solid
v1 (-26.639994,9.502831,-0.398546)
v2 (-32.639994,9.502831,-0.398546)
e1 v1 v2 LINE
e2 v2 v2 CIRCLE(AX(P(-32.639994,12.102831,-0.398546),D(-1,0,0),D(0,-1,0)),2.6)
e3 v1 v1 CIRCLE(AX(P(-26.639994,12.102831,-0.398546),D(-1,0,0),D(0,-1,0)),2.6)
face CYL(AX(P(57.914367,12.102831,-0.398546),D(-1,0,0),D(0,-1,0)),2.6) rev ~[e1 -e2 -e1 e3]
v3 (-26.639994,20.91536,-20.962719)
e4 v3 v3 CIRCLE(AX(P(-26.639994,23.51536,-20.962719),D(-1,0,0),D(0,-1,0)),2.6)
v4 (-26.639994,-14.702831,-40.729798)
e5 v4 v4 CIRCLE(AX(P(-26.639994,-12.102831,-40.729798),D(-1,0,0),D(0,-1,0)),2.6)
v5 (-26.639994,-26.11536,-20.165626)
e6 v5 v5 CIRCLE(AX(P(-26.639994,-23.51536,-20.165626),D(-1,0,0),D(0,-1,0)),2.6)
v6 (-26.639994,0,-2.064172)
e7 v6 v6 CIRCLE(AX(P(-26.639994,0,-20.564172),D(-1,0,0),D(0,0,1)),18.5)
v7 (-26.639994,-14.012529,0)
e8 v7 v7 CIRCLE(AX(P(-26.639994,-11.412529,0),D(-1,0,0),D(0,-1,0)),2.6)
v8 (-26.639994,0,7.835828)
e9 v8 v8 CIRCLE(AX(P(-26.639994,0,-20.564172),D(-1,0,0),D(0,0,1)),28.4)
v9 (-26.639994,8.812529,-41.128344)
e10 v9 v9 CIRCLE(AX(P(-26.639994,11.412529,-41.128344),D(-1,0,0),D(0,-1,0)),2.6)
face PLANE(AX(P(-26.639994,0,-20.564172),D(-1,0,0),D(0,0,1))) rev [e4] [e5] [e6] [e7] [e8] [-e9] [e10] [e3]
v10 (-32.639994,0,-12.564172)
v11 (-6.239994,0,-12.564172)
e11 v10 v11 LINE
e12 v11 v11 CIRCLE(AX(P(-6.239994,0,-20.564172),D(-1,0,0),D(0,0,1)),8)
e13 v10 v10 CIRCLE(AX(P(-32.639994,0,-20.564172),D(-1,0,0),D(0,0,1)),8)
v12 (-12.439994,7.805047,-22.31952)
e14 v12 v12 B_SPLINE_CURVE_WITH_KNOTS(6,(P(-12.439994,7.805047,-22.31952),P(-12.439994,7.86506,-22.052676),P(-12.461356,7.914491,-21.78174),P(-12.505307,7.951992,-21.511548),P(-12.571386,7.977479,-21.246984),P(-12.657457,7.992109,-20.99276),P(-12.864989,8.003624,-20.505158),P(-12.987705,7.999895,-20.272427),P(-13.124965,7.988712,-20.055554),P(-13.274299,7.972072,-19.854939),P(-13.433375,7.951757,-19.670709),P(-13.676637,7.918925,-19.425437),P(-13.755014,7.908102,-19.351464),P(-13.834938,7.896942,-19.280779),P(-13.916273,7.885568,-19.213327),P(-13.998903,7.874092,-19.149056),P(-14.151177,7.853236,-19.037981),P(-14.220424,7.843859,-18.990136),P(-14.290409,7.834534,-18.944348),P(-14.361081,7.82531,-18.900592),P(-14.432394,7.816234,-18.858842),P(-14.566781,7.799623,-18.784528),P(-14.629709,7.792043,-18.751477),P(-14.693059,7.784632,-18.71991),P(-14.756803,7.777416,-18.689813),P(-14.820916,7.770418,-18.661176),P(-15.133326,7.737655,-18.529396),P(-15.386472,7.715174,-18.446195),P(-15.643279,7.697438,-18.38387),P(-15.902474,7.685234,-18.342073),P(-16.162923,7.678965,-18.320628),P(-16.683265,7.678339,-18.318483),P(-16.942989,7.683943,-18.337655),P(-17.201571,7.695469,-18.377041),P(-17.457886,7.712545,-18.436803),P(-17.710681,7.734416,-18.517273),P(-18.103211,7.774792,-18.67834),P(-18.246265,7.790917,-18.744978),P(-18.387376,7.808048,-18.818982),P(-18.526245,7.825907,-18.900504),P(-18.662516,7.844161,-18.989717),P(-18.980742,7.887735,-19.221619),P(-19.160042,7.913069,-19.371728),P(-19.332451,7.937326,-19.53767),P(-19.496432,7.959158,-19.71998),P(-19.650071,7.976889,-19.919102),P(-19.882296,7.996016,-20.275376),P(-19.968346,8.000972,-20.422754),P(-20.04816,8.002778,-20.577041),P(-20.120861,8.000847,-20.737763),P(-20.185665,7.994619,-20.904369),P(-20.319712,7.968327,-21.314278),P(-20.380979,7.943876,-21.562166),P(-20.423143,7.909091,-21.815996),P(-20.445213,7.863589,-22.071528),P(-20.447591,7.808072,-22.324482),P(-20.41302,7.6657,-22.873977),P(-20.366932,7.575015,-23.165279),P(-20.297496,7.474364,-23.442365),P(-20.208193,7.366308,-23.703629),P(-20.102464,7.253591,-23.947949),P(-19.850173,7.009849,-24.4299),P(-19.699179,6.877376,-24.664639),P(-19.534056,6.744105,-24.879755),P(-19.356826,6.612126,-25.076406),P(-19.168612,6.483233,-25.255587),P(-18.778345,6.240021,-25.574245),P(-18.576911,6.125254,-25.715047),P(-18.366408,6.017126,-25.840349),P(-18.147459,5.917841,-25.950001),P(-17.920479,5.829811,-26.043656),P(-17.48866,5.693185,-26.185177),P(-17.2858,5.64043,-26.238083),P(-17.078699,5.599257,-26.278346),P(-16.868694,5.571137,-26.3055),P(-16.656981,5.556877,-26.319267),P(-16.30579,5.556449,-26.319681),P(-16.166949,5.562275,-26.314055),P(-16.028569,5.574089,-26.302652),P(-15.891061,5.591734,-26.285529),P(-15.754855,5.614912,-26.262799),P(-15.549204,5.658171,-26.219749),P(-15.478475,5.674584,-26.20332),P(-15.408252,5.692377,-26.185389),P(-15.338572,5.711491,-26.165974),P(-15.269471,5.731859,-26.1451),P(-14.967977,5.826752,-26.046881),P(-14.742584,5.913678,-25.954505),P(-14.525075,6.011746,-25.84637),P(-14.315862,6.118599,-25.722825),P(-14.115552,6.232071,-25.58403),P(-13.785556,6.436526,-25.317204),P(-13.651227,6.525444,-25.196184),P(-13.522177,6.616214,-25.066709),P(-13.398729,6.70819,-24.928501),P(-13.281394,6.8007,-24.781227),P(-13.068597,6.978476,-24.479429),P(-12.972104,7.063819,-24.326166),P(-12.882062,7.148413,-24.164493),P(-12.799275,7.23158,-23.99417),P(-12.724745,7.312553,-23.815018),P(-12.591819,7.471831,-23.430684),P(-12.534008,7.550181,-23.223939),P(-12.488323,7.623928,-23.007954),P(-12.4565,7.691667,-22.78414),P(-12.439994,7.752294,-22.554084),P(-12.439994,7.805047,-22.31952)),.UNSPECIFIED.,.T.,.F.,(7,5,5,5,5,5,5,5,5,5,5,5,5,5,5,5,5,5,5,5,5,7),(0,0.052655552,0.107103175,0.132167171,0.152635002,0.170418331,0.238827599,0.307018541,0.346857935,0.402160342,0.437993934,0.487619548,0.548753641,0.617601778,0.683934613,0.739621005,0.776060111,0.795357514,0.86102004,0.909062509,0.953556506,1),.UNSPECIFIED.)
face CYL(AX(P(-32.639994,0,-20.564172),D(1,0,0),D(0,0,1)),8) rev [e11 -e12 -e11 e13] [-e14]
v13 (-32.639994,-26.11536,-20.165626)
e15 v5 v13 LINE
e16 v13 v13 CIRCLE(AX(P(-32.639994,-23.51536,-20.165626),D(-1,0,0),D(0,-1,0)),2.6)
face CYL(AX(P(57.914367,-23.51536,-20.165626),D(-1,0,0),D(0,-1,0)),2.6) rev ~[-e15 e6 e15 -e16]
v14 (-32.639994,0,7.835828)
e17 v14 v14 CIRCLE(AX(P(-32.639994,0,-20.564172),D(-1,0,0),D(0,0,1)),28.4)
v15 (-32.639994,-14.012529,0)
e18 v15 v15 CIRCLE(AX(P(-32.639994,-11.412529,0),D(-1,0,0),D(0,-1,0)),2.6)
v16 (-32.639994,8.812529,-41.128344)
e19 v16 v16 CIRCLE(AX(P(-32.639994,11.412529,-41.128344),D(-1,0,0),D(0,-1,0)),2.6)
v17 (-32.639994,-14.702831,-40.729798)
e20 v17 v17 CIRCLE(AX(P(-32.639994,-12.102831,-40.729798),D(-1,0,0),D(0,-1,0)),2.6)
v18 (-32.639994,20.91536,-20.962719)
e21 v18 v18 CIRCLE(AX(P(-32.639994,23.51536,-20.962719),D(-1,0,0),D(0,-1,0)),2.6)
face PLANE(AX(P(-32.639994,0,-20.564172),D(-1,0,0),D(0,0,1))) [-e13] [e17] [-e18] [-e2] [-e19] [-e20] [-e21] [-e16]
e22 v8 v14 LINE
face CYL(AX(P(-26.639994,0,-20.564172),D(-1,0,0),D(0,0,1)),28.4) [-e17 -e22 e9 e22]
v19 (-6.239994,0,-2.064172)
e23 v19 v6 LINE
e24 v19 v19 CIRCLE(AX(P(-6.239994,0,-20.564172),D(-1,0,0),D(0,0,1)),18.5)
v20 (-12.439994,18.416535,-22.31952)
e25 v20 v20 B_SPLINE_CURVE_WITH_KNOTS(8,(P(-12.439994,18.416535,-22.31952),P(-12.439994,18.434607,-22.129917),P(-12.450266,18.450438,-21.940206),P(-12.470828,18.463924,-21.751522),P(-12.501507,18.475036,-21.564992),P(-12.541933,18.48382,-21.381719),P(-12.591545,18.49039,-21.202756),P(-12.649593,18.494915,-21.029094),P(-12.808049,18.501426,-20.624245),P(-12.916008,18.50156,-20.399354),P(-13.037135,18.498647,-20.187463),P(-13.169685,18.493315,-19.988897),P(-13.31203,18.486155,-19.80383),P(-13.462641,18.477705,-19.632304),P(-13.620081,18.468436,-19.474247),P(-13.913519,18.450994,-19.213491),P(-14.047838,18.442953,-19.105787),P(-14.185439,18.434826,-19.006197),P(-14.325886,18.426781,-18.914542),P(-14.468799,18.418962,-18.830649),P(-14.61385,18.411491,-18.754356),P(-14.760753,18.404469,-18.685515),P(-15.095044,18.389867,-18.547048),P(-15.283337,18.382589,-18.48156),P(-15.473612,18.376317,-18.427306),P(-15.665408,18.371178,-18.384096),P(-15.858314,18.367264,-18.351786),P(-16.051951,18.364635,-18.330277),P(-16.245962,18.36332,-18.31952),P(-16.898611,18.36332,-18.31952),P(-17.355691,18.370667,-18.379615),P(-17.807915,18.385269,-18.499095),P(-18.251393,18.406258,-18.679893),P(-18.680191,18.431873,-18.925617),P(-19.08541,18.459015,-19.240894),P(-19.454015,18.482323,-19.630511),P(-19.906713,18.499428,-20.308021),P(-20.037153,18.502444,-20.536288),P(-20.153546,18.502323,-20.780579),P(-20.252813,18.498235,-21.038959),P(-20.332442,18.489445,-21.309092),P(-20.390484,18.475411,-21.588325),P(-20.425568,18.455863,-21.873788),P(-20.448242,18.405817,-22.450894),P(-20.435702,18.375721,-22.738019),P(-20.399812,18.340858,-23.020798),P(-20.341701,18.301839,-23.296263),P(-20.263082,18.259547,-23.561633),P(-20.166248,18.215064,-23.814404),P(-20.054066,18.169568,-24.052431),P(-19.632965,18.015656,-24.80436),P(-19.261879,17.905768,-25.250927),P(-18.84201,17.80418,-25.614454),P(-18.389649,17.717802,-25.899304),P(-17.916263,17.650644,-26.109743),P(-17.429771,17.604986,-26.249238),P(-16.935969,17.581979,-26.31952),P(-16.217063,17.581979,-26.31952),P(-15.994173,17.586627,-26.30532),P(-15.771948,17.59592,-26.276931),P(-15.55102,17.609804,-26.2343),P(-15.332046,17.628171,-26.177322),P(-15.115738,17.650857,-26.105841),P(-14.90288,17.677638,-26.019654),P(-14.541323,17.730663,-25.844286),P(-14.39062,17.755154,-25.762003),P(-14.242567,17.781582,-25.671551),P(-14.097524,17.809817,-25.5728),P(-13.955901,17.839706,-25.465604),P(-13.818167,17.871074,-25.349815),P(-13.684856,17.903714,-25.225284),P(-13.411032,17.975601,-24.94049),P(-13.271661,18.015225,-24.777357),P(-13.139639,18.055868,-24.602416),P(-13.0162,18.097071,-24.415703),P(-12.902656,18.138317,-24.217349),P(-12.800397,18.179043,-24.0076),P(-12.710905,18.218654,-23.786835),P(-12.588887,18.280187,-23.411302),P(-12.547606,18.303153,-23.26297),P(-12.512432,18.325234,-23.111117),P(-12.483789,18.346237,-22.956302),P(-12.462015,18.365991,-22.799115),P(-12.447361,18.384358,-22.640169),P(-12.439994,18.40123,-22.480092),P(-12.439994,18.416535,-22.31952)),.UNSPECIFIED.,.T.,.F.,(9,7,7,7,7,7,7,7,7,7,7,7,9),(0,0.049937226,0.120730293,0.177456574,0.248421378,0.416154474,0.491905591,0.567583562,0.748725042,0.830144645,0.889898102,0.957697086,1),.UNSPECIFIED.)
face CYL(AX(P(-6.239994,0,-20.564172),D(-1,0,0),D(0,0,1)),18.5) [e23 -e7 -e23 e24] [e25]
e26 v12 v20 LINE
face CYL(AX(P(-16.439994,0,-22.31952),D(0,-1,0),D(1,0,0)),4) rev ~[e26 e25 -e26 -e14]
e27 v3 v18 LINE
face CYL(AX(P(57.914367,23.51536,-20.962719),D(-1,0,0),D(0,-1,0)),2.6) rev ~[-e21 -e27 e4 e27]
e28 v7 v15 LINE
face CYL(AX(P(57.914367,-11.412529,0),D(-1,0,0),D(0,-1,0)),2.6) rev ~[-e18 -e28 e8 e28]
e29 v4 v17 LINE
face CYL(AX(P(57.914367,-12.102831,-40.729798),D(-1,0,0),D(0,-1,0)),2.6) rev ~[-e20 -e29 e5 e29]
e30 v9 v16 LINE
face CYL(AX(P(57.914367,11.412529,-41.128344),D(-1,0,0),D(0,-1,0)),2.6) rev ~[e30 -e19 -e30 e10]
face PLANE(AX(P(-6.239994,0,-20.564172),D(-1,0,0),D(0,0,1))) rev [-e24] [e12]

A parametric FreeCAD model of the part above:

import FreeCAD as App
import Part
import Sketcher

V = App.Vector
Q = App.Units.Quantity

doc = App.newDocument("Part")
body = doc.addObject("PartDesign::Body", "Body")

# Sketch on XZ plane
sketch1 = body.newObject("Sketcher::SketchObject", "Sketch")
sketch1.AttachmentSupport = (doc.getObject("XZ_Plane"), [""])
sketch1.MapMode = "FlatFace"
sketch1.addGeometry(Part.LineSegment(V(-32.639994, 7.835828, 0), V(-32.639994, -12.564172, 0)), False)
sketch1.addGeometry(Part.LineSegment(V(-32.639994, -12.564172, 0), V(-6.239994, -12.564172, 0)), False)
sketch1.addGeometry(Part.LineSegment(V(-6.239994, -12.564172, 0), V(-6.239994, -2.064172, 0)), False)
sketch1.addGeometry(Part.LineSegment(V(-6.239994, -2.064172, 0), V(-26.639994, -2.064172, 0)), False)
sketch1.addGeometry(Part.LineSegment(V(-26.639994, -2.064172, 0), V(-26.639994, 7.835828, 0)), False)
sketch1.addGeometry(Part.LineSegment(V(-26.639994, 7.835828, 0), V(-32.639994, 7.835828, 0)), False)
sketch1.addGeometry(Part.LineSegment(V(-6.239994, -20.564172, 0), V(-32.639994, -20.564172, 0)), True)  # axis
sketch1.addConstraint(Sketcher.Constraint("Coincident", 0, 2, 1, 1))
sketch1.addConstraint(Sketcher.Constraint("Coincident", 1, 2, 2, 1))
sketch1.addConstraint(Sketcher.Constraint("Coincident", 2, 2, 3, 1))
sketch1.addConstraint(Sketcher.Constraint("Coincident", 3, 2, 4, 1))
sketch1.addConstraint(Sketcher.Constraint("Coincident", 4, 2, 5, 1))
sketch1.addConstraint(Sketcher.Constraint("Coincident", 5, 2, 0, 1))
sketch1.addConstraint(Sketcher.Constraint("Vertical", 0))
sketch1.addConstraint(Sketcher.Constraint("Horizontal", 1))
sketch1.addConstraint(Sketcher.Constraint("Vertical", 2))
sketch1.addConstraint(Sketcher.Constraint("Horizontal", 3))
sketch1.addConstraint(Sketcher.Constraint("Vertical", 4))
sketch1.addConstraint(Sketcher.Constraint("Horizontal", 5))
sketch1.addConstraint(Sketcher.Constraint("Horizontal", 6))
sketch1.addConstraint(Sketcher.Constraint("Vertical", 2, 2, 6, 1))
sketch1.addConstraint(Sketcher.Constraint("Vertical", 5, 2, 6, 2))
sketch1.addConstraint(Sketcher.Constraint("Equal", 3, 0))
sketch1.addConstraint(Sketcher.Constraint("DistanceX", 5, 2, 5, 1, Q("6 mm")))
sketch1.addConstraint(Sketcher.Constraint("DistanceX", 1, 1, 1, 2, Q("26.4 mm")))
sketch1.addConstraint(Sketcher.Constraint("DistanceY", 2, 1, 2, 2, Q("10.5 mm")))
sketch1.addConstraint(Sketcher.Constraint("DistanceY", 6, 1, 1, 2, Q("8 mm")))
sketch1.addConstraint(Sketcher.Constraint("DistanceX", 0, 2, -1, 1, Q("32.639994 mm")))
sketch1.addConstraint(Sketcher.Constraint("DistanceY", 0, 2, -1, 1, Q("12.564172 mm")))
revolution = body.newObject("PartDesign::Revolution", "Revolution")
revolution.Profile = sketch1
revolution.ReferenceAxis = (sketch1, ["Axis0"])
revolution.Angle = 360

# Sketch on YZ plane
sketch2 = body.newObject("Sketcher::SketchObject", "Sketch001")
sketch2.AttachmentSupport = (doc.getObject("YZ_Plane"), [""])
sketch2.MapMode = "FlatFace"
sketch2.AttachmentOffset = App.Placement(V(0, 0, -26.639994), App.Rotation())
sketch2.addGeometry(Part.Circle(V(-11.412529, 0, 0), V(0, 0, 1), 2.6), False)
sketch2.addGeometry(Part.Circle(V(12.102831, -0.398546, 0), V(0, 0, 1), 2.6), False)
sketch2.addGeometry(Part.Circle(V(23.51536, -20.962719, 0), V(0, 0, 1), 2.6), False)
sketch2.addGeometry(Part.Circle(V(11.412529, -41.128344, 0), V(0, 0, 1), 2.6), False)
sketch2.addGeometry(Part.Circle(V(-12.102831, -40.729798, 0), V(0, 0, 1), 2.6), False)
sketch2.addGeometry(Part.Circle(V(-23.51536, -20.165626, 0), V(0, 0, 1), 2.6), False)
sketch2.addConstraint(Sketcher.Constraint("Equal", 0, 1))
sketch2.addConstraint(Sketcher.Constraint("Equal", 1, 2))
sketch2.addConstraint(Sketcher.Constraint("Equal", 2, 3))
sketch2.addConstraint(Sketcher.Constraint("Equal", 3, 4))
sketch2.addConstraint(Sketcher.Constraint("Equal", 4, 5))
sketch2.addConstraint(Sketcher.Constraint("PointOnObject", 0, 3, -1))
sketch2.addConstraint(Sketcher.Constraint("Diameter", 0, Q("5.2 mm")))
sketch2.addConstraint(Sketcher.Constraint("DistanceY", 4, 3, -1, 1, Q("40.729798 mm")))
sketch2.addConstraint(Sketcher.Constraint("DistanceY", 3, 3, 1, 3, Q("40.729798 mm")))
sketch2.addConstraint(Sketcher.Constraint("DistanceX", 0, 3, -1, 1, Q("11.412529 mm")))
sketch2.addConstraint(Sketcher.Constraint("DistanceX", -1, 1, 1, 3, Q("12.102831 mm")))
sketch2.addConstraint(Sketcher.Constraint("DistanceX", -1, 1, 2, 3, Q("23.51536 mm")))
sketch2.addConstraint(Sketcher.Constraint("DistanceY", 2, 3, -1, 1, Q("20.962719 mm")))
sketch2.addConstraint(Sketcher.Constraint("DistanceX", -1, 1, 3, 3, Q("11.412529 mm")))
sketch2.addConstraint(Sketcher.Constraint("DistanceX", 4, 3, -1, 1, Q("12.102831 mm")))
sketch2.addConstraint(Sketcher.Constraint("DistanceX", 5, 3, -1, 1, Q("23.51536 mm")))
sketch2.addConstraint(Sketcher.Constraint("DistanceY", 4, 3, 1, 3, Q("40.331252 mm")))
sketch2.addConstraint(Sketcher.Constraint("DistanceY", 3, 3, 5, 3, Q("20.962719 mm")))
doc.recompute()
hole = body.newObject("PartDesign::Hole", "Hole")
hole.Profile = sketch2
hole.ThreadType = "None"
hole.Diameter = 5.2
hole.DepthType = "ThroughAll"

# Sketch on XZ plane
sketch3 = body.newObject("Sketcher::SketchObject", "Sketch002")
sketch3.AttachmentSupport = (doc.getObject("XZ_Plane"), [""])
sketch3.MapMode = "FlatFace"
sketch3.addGeometry(Part.Circle(V(-16.439994, -22.31952, 0), V(0, 0, 1), 4), False)
sketch3.addConstraint(Sketcher.Constraint("Diameter", 0, Q("8 mm")))
sketch3.addConstraint(Sketcher.Constraint("DistanceY", 0, 3, -1, 1, Q("22.31952 mm")))
sketch3.addConstraint(Sketcher.Constraint("DistanceX", 0, 3, -1, 1, Q("16.439994 mm")))
pocket1 = body.newObject("PartDesign::Pocket", "Pocket")
pocket1.Profile = sketch3
pocket1.Type = "ThroughAll"

doc.recompute()
